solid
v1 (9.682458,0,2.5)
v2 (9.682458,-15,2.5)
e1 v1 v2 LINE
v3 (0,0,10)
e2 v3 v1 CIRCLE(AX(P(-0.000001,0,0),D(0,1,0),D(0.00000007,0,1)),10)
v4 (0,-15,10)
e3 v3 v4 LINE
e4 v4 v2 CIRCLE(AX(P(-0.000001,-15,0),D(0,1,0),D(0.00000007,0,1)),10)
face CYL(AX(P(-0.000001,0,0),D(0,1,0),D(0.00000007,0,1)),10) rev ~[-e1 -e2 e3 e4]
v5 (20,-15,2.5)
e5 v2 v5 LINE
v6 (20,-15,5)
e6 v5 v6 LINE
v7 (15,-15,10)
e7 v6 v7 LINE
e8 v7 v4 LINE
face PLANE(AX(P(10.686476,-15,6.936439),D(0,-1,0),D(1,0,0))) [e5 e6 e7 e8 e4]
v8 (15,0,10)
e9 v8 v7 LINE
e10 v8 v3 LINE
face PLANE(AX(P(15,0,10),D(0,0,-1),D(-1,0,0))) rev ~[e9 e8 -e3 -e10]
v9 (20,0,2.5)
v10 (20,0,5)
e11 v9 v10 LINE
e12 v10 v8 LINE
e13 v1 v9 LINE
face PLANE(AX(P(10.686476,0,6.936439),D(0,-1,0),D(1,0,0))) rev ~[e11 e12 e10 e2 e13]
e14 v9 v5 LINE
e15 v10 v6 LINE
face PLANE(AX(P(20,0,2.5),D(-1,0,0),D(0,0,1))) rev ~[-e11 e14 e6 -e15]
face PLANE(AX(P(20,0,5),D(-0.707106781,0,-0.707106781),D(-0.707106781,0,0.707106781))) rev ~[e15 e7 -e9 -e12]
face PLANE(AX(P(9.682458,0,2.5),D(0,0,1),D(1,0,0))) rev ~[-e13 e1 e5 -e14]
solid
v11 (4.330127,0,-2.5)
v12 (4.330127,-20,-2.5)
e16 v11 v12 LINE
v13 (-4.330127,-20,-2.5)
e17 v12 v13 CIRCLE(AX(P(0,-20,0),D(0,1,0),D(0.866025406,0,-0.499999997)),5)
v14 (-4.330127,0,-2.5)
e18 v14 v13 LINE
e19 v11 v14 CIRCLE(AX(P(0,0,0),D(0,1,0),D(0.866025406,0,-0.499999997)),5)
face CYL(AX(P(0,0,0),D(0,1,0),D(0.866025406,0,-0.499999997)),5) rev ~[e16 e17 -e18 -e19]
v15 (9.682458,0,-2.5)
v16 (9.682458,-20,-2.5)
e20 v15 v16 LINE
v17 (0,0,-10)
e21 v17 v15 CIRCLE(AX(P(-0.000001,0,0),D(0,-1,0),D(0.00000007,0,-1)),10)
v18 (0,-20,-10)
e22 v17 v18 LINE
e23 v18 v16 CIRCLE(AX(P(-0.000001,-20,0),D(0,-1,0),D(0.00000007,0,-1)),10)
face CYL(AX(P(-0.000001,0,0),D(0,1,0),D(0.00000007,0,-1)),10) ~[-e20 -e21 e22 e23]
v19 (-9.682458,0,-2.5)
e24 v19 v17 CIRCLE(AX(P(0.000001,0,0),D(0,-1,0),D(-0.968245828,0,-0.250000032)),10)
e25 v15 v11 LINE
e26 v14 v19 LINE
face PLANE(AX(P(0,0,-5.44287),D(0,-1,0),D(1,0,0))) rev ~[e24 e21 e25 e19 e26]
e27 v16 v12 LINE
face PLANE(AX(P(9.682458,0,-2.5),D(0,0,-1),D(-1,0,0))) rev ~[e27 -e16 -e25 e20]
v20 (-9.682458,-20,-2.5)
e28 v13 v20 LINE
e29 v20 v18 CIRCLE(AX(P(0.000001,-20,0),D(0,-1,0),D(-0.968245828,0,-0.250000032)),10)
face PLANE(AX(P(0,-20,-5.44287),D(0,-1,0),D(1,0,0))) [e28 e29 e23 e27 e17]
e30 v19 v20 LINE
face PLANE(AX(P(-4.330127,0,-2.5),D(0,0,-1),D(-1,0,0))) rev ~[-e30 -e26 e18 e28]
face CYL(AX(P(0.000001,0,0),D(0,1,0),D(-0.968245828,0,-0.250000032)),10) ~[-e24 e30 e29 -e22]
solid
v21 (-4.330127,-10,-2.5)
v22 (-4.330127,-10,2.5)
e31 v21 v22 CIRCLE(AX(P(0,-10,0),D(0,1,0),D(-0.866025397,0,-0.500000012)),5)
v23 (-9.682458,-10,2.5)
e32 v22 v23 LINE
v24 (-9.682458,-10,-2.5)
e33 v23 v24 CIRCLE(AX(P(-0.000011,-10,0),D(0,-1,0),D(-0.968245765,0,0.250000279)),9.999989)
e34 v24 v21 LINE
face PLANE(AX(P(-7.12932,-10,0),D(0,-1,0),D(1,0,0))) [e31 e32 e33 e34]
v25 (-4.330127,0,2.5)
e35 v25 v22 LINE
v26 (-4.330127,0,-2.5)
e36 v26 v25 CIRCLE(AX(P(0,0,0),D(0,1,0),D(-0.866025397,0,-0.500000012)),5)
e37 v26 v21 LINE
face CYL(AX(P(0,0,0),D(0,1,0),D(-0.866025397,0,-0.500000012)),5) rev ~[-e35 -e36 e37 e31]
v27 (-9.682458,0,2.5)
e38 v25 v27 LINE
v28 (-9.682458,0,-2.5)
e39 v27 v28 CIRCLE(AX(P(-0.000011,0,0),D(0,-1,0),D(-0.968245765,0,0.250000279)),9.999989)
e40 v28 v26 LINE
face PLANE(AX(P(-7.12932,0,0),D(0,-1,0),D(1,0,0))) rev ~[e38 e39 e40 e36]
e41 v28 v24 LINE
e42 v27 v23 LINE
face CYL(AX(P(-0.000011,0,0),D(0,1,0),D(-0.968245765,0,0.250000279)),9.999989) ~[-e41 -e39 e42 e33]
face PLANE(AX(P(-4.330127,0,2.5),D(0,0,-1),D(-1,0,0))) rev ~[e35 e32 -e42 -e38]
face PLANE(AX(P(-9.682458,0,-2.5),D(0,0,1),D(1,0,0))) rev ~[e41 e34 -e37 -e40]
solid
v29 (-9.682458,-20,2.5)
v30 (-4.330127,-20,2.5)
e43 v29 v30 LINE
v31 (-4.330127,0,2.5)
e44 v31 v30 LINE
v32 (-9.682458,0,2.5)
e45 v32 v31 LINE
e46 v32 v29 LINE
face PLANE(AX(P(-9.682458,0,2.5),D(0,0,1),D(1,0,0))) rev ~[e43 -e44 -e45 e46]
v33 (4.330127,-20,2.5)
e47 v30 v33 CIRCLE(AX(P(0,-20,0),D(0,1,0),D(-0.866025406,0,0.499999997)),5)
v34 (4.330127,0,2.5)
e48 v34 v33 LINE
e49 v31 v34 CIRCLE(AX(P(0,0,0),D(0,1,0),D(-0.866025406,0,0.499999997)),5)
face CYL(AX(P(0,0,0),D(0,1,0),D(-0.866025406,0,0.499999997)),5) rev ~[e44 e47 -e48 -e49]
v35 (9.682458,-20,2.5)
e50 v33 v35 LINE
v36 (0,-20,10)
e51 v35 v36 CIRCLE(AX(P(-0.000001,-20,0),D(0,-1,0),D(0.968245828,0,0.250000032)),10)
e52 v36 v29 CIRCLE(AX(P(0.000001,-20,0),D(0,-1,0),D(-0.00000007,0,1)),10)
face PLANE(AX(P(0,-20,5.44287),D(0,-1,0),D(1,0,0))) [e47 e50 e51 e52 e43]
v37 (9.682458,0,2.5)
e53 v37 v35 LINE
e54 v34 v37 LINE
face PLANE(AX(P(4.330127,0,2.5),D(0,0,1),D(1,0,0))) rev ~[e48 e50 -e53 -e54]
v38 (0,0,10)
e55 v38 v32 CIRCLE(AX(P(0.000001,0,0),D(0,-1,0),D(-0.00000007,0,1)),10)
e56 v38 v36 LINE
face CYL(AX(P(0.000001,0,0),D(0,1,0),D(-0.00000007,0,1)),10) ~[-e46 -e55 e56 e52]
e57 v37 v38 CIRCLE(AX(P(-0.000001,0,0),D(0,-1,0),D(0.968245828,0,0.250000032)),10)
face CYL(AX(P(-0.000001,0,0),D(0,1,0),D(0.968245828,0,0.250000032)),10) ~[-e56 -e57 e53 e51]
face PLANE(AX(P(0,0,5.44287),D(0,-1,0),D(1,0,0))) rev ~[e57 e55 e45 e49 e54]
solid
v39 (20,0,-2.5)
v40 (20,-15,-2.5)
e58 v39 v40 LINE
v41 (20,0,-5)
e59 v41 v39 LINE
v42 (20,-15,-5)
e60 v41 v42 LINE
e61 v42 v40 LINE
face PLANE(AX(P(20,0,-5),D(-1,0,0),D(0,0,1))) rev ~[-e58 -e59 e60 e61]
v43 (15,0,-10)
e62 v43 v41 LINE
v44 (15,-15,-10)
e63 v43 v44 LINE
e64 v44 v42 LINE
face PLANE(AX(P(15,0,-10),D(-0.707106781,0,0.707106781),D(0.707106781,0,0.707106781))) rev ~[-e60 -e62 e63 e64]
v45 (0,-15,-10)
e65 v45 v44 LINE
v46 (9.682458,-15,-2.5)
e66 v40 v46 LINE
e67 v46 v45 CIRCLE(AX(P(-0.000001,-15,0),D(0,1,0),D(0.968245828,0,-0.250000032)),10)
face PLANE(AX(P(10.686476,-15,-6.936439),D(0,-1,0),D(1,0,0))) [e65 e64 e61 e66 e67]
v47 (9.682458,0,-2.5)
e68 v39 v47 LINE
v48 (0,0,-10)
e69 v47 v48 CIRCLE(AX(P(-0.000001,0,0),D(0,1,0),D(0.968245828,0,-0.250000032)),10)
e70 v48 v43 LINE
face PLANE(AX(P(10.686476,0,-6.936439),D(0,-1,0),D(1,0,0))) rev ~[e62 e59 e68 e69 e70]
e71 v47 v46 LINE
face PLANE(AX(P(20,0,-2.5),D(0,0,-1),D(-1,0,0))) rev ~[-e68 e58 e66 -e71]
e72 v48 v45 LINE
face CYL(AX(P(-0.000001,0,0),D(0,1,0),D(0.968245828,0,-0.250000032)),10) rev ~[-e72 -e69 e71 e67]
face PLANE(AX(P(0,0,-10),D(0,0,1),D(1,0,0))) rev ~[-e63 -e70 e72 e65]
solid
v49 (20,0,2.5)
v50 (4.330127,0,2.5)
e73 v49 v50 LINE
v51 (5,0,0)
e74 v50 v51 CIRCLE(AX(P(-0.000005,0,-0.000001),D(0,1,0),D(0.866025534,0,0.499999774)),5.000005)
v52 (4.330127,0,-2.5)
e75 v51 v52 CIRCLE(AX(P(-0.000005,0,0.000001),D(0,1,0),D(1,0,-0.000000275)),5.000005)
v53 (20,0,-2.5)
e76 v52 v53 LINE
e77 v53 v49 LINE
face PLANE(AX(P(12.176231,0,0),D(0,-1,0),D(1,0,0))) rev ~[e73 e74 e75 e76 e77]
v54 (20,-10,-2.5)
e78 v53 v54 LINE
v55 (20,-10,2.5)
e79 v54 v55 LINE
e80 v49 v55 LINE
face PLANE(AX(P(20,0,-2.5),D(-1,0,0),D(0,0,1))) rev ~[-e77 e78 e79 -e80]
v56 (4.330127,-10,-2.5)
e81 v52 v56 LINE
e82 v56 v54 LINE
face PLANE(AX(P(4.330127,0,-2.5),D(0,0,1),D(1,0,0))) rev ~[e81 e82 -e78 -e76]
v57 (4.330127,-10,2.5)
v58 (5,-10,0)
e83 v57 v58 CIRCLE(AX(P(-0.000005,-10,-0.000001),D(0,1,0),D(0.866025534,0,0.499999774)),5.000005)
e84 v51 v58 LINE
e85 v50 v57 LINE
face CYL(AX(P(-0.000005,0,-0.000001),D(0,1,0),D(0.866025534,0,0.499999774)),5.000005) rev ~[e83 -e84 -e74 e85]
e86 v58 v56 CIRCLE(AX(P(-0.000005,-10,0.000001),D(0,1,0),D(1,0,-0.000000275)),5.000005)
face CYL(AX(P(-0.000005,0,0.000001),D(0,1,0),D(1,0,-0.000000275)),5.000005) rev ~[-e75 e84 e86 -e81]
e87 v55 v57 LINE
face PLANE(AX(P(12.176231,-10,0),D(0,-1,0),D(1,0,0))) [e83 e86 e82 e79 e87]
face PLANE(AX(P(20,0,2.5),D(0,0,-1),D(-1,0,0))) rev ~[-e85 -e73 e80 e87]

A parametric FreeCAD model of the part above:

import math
import FreeCAD as App
import Part
import Sketcher
from FreeCAD import Vector
Q = App.Units.Quantity

doc = App.newDocument("Part")
body = doc.addObject("PartDesign::Body", "Body")
body.AllowCompound = True

sketch1 = body.newObject("Sketcher::SketchObject", "Sketch")
sketch1.AttachmentSupport = (doc.getObject("XZ_Plane"), [""])
sketch1.MapMode = "FlatFace"
sketch1.addGeometry([
    Part.ArcOfCircle(Part.Circle(Vector(-0.000001, 0, 0), Vector(0, 0, 1), 10), math.radians(14.477514), math.radians(89.999996)),
    Part.LineSegment(Vector(9.682458, 2.5, 0), Vector(20, 2.5, 0)),
    Part.LineSegment(Vector(20, 2.5, 0), Vector(20, 5, 0)),
    Part.LineSegment(Vector(20, 5, 0), Vector(15, 10, 0)),
    Part.LineSegment(Vector(15, 10, 0), Vector(0, 10, 0)),
    Part.LineSegment(Vector(20, -2.5, 0), Vector(9.682458, -2.5, 0)),
    Part.ArcOfCircle(Part.Circle(Vector(-0.000001, 0, 0), Vector(0, 0, 1), 10), math.radians(-89.999996), math.radians(-14.477514)),
    Part.LineSegment(Vector(0, -10, 0), Vector(15, -10, 0)),
    Part.LineSegment(Vector(15, -10, 0), Vector(20, -5, 0)),
    Part.LineSegment(Vector(20, -5, 0), Vector(20, -2.5, 0)),
], False)
sketch1.addConstraint([
    Sketcher.Constraint("Coincident", 0, 1, 1, 1),
    Sketcher.Constraint("Coincident", 1, 2, 2, 1),
    Sketcher.Constraint("Coincident", 2, 2, 3, 1),
    Sketcher.Constraint("Coincident", 3, 2, 4, 1),
    Sketcher.Constraint("Tangent", 4, 2, 0, 2),
    Sketcher.Constraint("Coincident", 5, 2, 6, 2),
    Sketcher.Constraint("Tangent", 6, 1, 7, 1),
    Sketcher.Constraint("Coincident", 7, 2, 8, 1),
    Sketcher.Constraint("Coincident", 8, 2, 9, 1),
    Sketcher.Constraint("Coincident", 9, 2, 5, 1),
    Sketcher.Constraint("Horizontal", 1),
    Sketcher.Constraint("Vertical", 2),
    Sketcher.Constraint("Horizontal", 4),
    Sketcher.Constraint("Horizontal", 5),
    Sketcher.Constraint("Horizontal", 7),
    Sketcher.Constraint("Vertical", 9),
    Sketcher.Constraint("Coincident", 0, 3, -1, 1),
    Sketcher.Constraint("Coincident", 6, 3, -1, 1),
    Sketcher.Constraint("Equal", 0, 6),
    Sketcher.Constraint("Symmetric", 2, 2, 8, 2, -1),
    Sketcher.Constraint("Perpendicular", 3, 8),
    Sketcher.Constraint("Vertical", 0, 1, 5, 2),
    Sketcher.Constraint("Vertical", 3, 2, 7, 2),
    Sketcher.Constraint("Radius", 0, Q("10 mm")),
    Sketcher.Constraint("DistanceX", 4, 2, 4, 1, Q("15 mm")),
    Sketcher.Constraint("DistanceY", 2, 1, 2, 2, Q("2.5 mm")),
    Sketcher.Constraint("DistanceX", -1, 1, 1, 2, Q("20 mm")),
])
pad1 = body.newObject("PartDesign::Pad", "Pad")
pad1.Profile = sketch1
pad1.Length = 15
body2 = doc.addObject("PartDesign::Body", "Body001")
body2.AllowCompound = True

sketch2 = body2.newObject("Sketcher::SketchObject", "Sketch001")
sketch2.AttachmentSupport = (doc.getObject("XZ_Plane001"), [""])
sketch2.MapMode = "FlatFace"
sketch2.addGeometry([
    Part.ArcOfCircle(Part.Circle(Vector(0, 0, 0), Vector(0, 0, 1), 5), math.radians(30), math.radians(150)),
    Part.LineSegment(Vector(4.330127, 2.5, 0), Vector(9.682458, 2.5, 0)),
    Part.ArcOfCircle(Part.Circle(Vector(-0.000001, 0, 0), Vector(0, 0, 1), 10), math.radians(14.477514), math.radians(89.999996)),
    Part.ArcOfCircle(Part.Circle(Vector(0.000001, 0, 0), Vector(0, 0, 1), 10), math.radians(90.000004), math.radians(165.522486)),
    Part.LineSegment(Vector(-9.682458, 2.5, 0), Vector(-4.330127, 2.5, 0)),
    Part.LineSegment(Vector(9.682458, -2.5, 0), Vector(4.330127, -2.5, 0)),
    Part.ArcOfCircle(Part.Circle(Vector(0, 0, 0), Vector(0, 0, 1), 5), math.radians(-150), math.radians(-30)),
    Part.LineSegment(Vector(-4.330127, -2.5, 0), Vector(-9.682458, -2.5, 0)),
    Part.ArcOfCircle(Part.Circle(Vector(0.000001, 0, 0), Vector(0, 0, 1), 10), math.radians(-165.522486), math.radians(-90.000004)),
    Part.ArcOfCircle(Part.Circle(Vector(-0.000001, 0, 0), Vector(0, 0, 1), 10), math.radians(-89.999996), math.radians(-14.477514)),
], False)
sketch2.addConstraint([
    Sketcher.Constraint("Coincident", 0, 1, 1, 1),
    Sketcher.Constraint("Coincident", 1, 2, 2, 1),
    Sketcher.Constraint("Tangent", 2, 2, 3, 1),
    Sketcher.Constraint("Coincident", 3, 2, 4, 1),
    Sketcher.Constraint("Coincident", 4, 2, 0, 2),
    Sketcher.Constraint("Coincident", 5, 2, 6, 2),
    Sketcher.Constraint("Coincident", 6, 1, 7, 1),
    Sketcher.Constraint("Coincident", 7, 2, 8, 1),
    Sketcher.Constraint("Tangent", 8, 2, 9, 1),
    Sketcher.Constraint("Coincident", 9, 2, 5, 1),
    Sketcher.Constraint("Horizontal", 1),
    Sketcher.Constraint("Horizontal", 4),
    Sketcher.Constraint("Horizontal", 5),
    Sketcher.Constraint("Horizontal", 7),
    Sketcher.Constraint("Coincident", 0, 3, -1, 1),
    Sketcher.Constraint("Coincident", 2, 3, -1, 1),
    Sketcher.Constraint("Coincident", 6, 3, -1, 1),
    Sketcher.Constraint("Coincident", 8, 3, -1, 1),
    Sketcher.Constraint("Equal", 2, 3),
    Sketcher.Constraint("Equal", 0, 6),
    Sketcher.Constraint("Equal", 3, 8),
    Sketcher.Constraint("Equal", 8, 9),
    Sketcher.Constraint("PointOnObject", 2, 2, -2),
    Sketcher.Constraint("PointOnObject", 8, 2, -2),
    Sketcher.Constraint("Horizontal", 1, 2, 3, 2),
    Sketcher.Constraint("Horizontal", 5, 2, 6, 1),
    Sketcher.Constraint("Vertical", 0, 1, 5, 2),
    Sketcher.Constraint("Radius", 0, Q("5 mm")),
    Sketcher.Constraint("Radius", 2, Q("10 mm")),
    Sketcher.Constraint("DistanceY", 5, 2, 0, 1, Q("5 mm")),
])
pad2 = body2.newObject("PartDesign::Pad", "Pad001")
pad2.Profile = sketch2
pad2.Length = 20
body3 = doc.addObject("PartDesign::Body", "Body002")
body3.AllowCompound = True

sketch3 = body3.newObject("Sketcher::SketchObject", "Sketch002")
sketch3.AttachmentSupport = (doc.getObject("XZ_Plane002"), [""])
sketch3.MapMode = "FlatFace"
sketch3.addGeometry([
    Part.ArcOfCircle(Part.Circle(Vector(-0.000005, -0.000001, 0), Vector(0, 0, 1), 5.000005), math.radians(0.000016), math.radians(29.999985)),
    Part.ArcOfCircle(Part.Circle(Vector(-0.000005, 0.000001, 0), Vector(0, 0, 1), 5.000005), math.radians(-29.999985), math.radians(-0.000016)),
    Part.LineSegment(Vector(4.330127, -2.5, 0), Vector(20, -2.5, 0)),
    Part.LineSegment(Vector(20, -2.5, 0), Vector(20, 2.5, 0)),
    Part.LineSegment(Vector(20, 2.5, 0), Vector(4.330127, 2.5, 0)),
    Part.ArcOfCircle(Part.Circle(Vector(0, 0, 0), Vector(0, 0, 1), 5), math.radians(149.999999), math.radians(210.000001)),
    Part.LineSegment(Vector(-4.330127, 2.5, 0), Vector(-9.682458, 2.5, 0)),
    Part.ArcOfCircle(Part.Circle(Vector(-0.000011, 0, 0), Vector(0, 0, 1), 9.999989), math.radians(165.522471), math.radians(194.477529)),
    Part.LineSegment(Vector(-9.682458, -2.5, 0), Vector(-4.330127, -2.5, 0)),
], False)
sketch3.addConstraint([
    Sketcher.Constraint("Tangent", 0, 1, 1, 2),
    Sketcher.Constraint("Coincident", 1, 1, 2, 1),
    Sketcher.Constraint("Coincident", 2, 2, 3, 1),
    Sketcher.Constraint("Coincident", 3, 2, 4, 1),
    Sketcher.Constraint("Coincident", 4, 2, 0, 2),
    Sketcher.Constraint("Coincident", 5, 1, 6, 1),
    Sketcher.Constraint("Coincident", 6, 2, 7, 1),
    Sketcher.Constraint("Coincident", 7, 2, 8, 1),
    Sketcher.Constraint("Coincident", 8, 2, 5, 2),
    Sketcher.Constraint("Horizontal", 2),
    Sketcher.Constraint("Vertical", 3),
    Sketcher.Constraint("Horizontal", 4),
    Sketcher.Constraint("Horizontal", 6),
    Sketcher.Constraint("Horizontal", 8),
    Sketcher.Constraint("Coincident", 0, 3, -1, 1),
    Sketcher.Constraint("Coincident", 5, 3, -1, 1),
    Sketcher.Constraint("Coincident", 7, 3, 0, 3),
    Sketcher.Constraint("Equal", 0, 1),
    Sketcher.Constraint("Symmetric", 1, 1, 5, 1, -1, 1),
    Sketcher.Constraint("PointOnObject", 0, 1, -1),
    Sketcher.Constraint("Horizontal", 4, 2, 5, 1),
    Sketcher.Constraint("Horizontal", 2, 2, 7, 2),
    Sketcher.Constraint("Radius", 5, Q("5 mm")),
    Sketcher.Constraint("DistanceY", 3, 1, 3, 2, Q("5 mm")),
    Sketcher.Constraint("DistanceX", -1, 1, 2, 2, Q("20 mm")),
    Sketcher.Constraint("Radius", 7, Q("9.999989 mm")),
])
pad3 = body3.newObject("PartDesign::Pad", "Pad002")
pad3.Profile = sketch3
pad3.Length = 10

doc.recompute()
